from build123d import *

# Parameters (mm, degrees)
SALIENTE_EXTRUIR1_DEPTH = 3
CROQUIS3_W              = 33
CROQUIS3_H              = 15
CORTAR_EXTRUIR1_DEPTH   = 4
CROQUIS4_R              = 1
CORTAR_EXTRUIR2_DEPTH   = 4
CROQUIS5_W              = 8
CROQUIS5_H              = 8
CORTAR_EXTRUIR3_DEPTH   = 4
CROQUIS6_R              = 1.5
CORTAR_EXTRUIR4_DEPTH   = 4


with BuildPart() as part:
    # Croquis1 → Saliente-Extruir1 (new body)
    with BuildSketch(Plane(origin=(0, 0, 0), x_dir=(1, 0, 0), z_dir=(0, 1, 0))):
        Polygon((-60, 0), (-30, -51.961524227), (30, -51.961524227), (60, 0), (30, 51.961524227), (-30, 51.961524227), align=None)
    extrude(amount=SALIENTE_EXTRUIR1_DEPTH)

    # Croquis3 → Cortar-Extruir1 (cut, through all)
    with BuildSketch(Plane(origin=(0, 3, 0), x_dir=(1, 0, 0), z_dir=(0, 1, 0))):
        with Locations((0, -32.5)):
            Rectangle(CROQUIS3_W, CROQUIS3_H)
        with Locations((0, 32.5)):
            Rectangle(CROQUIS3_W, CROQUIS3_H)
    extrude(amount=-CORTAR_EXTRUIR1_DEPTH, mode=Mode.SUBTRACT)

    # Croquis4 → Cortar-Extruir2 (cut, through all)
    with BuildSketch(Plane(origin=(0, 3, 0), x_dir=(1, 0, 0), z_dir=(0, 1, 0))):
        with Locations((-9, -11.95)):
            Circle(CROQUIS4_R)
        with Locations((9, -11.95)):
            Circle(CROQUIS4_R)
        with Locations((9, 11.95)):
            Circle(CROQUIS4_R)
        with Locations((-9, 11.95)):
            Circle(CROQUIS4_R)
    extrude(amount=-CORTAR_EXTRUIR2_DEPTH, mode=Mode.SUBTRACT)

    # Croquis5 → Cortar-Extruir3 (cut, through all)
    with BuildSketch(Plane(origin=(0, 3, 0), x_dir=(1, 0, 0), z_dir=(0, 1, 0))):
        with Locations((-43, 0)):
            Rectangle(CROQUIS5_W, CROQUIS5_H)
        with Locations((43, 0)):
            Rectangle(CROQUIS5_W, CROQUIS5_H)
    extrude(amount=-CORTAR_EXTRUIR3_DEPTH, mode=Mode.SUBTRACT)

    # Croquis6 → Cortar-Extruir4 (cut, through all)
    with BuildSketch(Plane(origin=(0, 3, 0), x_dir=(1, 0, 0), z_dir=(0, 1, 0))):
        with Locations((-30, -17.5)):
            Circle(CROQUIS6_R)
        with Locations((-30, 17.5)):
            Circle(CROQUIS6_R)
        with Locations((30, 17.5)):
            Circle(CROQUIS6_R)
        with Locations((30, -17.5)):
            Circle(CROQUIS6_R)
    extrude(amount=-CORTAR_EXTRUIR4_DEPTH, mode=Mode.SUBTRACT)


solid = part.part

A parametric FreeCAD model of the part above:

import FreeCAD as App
import Part
import Sketcher

V = App.Vector
Q = App.Units.Quantity

doc = App.newDocument("Part")
body = doc.addObject("PartDesign::Body", "Body")

sketch1 = body.newObject("Sketcher::SketchObject", "Sketch")
sketch1.AttachmentSupport = (doc.getObject("XZ_Plane"), [""])
sketch1.MapMode = "FlatFace"
sketch1.addGeometry([
    Part.LineSegment(V(-60, 0, 0), V(-30, 52, 0)),
    Part.LineSegment(V(-30, 52, 0), V(30, 52, 0)),
    Part.LineSegment(V(30, 52, 0), V(60, 0, 0)),
    Part.LineSegment(V(60, 0, 0), V(30, -52, 0)),
    Part.LineSegment(V(30, -52, 0), V(-30, -52, 0)),
    Part.LineSegment(V(-30, -52, 0), V(-60, 0, 0)),
], False)
sketch1.addConstraint([
    Sketcher.Constraint("Coincident", 0, 2, 1, 1),
    Sketcher.Constraint("Coincident", 1, 2, 2, 1),
    Sketcher.Constraint("Coincident", 2, 2, 3, 1),
    Sketcher.Constraint("Coincident", 3, 2, 4, 1),
    Sketcher.Constraint("Coincident", 4, 2, 5, 1),
    Sketcher.Constraint("Coincident", 5, 2, 0, 1),
    Sketcher.Constraint("Horizontal", 1),
    Sketcher.Constraint("Horizontal", 4),
    Sketcher.Constraint("Symmetric", 0, 2, 3, 2, -1, 1),
    Sketcher.Constraint("Symmetric", 2, 2, 5, 2, -1, 1),
    Sketcher.Constraint("PointOnObject", 2, 2, -1),
    Sketcher.Constraint("Parallel", 2, 5),
    Sketcher.Constraint("Vertical", 1, 2, 3, 2),
    Sketcher.Constraint("DistanceX", 1, 1, 1, 2, 60.0),
    Sketcher.Constraint("Angle", 0, Q("60 deg")),
    Sketcher.Constraint("Distance", 0, 60.0),
])
pad1 = body.newObject("PartDesign::Pad", "Pad")
pad1.Profile = sketch1
pad1.Length = 3
pad1.Reversed = True

sketch2 = body.newObject("Sketcher::SketchObject", "Sketch001")
sketch2.AttachmentSupport = (doc.getObject("XZ_Plane"), [""])
sketch2.MapMode = "FlatFace"
sketch2.AttachmentOffset = App.Placement(V(0, 0, -3), App.Rotation())
sketch2.addGeometry([
    Part.LineSegment(V(-16, 25, 0), V(-16, 40, 0)),
    Part.LineSegment(V(-16, 40, 0), V(16, 40, 0)),
    Part.LineSegment(V(16, 40, 0), V(16, 25, 0)),
    Part.LineSegment(V(16, 25, 0), V(-16, 25, 0)),
    Part.LineSegment(V(-16, -40, 0), V(-16, -25, 0)),
    Part.LineSegment(V(-16, -25, 0), V(16, -25, 0)),
    Part.LineSegment(V(16, -25, 0), V(16, -40, 0)),
    Part.LineSegment(V(16, -40, 0), V(-16, -40, 0)),
], False)
sketch2.addConstraint([
    Sketcher.Constraint("Coincident", 0, 2, 1, 1),
    Sketcher.Constraint("Coincident", 1, 2, 2, 1),
    Sketcher.Constraint("Coincident", 2, 2, 3, 1),
    Sketcher.Constraint("Coincident", 3, 2, 0, 1),
    Sketcher.Constraint("Coincident", 4, 2, 5, 1),
    Sketcher.Constraint("Coincident", 5, 2, 6, 1),
    Sketcher.Constraint("Coincident", 6, 2, 7, 1),
    Sketcher.Constraint("Coincident", 7, 2, 4, 1),
    Sketcher.Constraint("Vertical", 0),
    Sketcher.Constraint("Horizontal", 1),
    Sketcher.Constraint("Vertical", 2),
    Sketcher.Constraint("Horizontal", 3),
    Sketcher.Constraint("Vertical", 4),
    Sketcher.Constraint("Horizontal", 5),
    Sketcher.Constraint("Vertical", 6),
    Sketcher.Constraint("Horizontal", 7),
    Sketcher.Constraint("Symmetric", 2, 2, 4, 2, -1, 1),
    Sketcher.Constraint("Symmetric", 0, 2, 6, 2, -1, 1),
    Sketcher.Constraint("Vertical", 3, 2, 4, 2),
    Sketcher.Constraint("DistanceX", 1, 1, 1, 2, 33.0),
    Sketcher.Constraint("DistanceY", 0, 1, 0, 2, 15.0),
    Sketcher.Constraint("DistanceY", -1, 1, 0, 2, 40.0),
])
pocket1 = body.newObject("PartDesign::Pocket", "Pocket")
pocket1.Profile = sketch2
pocket1.Type = "ThroughAll"
pocket1.Reversed = True

sketch3 = body.newObject("Sketcher::SketchObject", "Sketch002")
sketch3.AttachmentSupport = (doc.getObject("XZ_Plane"), [""])
sketch3.MapMode = "FlatFace"
sketch3.AttachmentOffset = App.Placement(V(0, 0, -3), App.Rotation())
sketch3.addGeometry([
    Part.Circle(V(-9, 11.9, 0), V(0, 0, 1), 1),
    Part.Circle(V(9, 11.9, 0), V(0, 0, 1), 1),
    Part.Circle(V(9, -11.9, 0), V(0, 0, 1), 1),
    Part.Circle(V(-9, -11.9, 0), V(0, 0, 1), 1),
], False)
sketch3.addConstraint([
    Sketcher.Constraint("Equal", 0, 1),
    Sketcher.Constraint("Equal", 1, 2),
    Sketcher.Constraint("Equal", 2, 3),
    Sketcher.Constraint("Symmetric", 0, 3, 2, 3, -1, 1),
    Sketcher.Constraint("Symmetric", 1, 3, 3, 3, -1, 1),
    Sketcher.Constraint("Symmetric", 0, 3, 1, 3, -2),
    Sketcher.Constraint("Diameter", 0, 2.0),
    Sketcher.Constraint("DistanceX", 0, 3, -1, 1, 9.0),
    Sketcher.Constraint("DistanceY", 2, 3, 1, 3, 23.9),
])
pocket2 = body.newObject("PartDesign::Pocket", "Pocket001")
pocket2.Profile = sketch3
pocket2.Type = "ThroughAll"
pocket2.Reversed = True

sketch4 = body.newObject("Sketcher::SketchObject", "Sketch003")
sketch4.AttachmentSupport = (doc.getObject("XZ_Plane"), [""])
sketch4.MapMode = "FlatFace"
sketch4.AttachmentOffset = App.Placement(V(0, 0, -3), App.Rotation())
sketch4.addGeometry([
    Part.LineSegment(V(-47, -4, 0), V(-47, 4, 0)),
    Part.LineSegment(V(-47, 4, 0), V(-39, 4, 0)),
    Part.LineSegment(V(-39, 4, 0), V(-39, -4, 0)),
    Part.LineSegment(V(-39, -4, 0), V(-47, -4, 0)),
    Part.LineSegment(V(39, -4, 0), V(39, 4, 0)),
    Part.LineSegment(V(39, 4, 0), V(47, 4, 0)),
    Part.LineSegment(V(47, 4, 0), V(47, -4, 0)),
    Part.LineSegment(V(47, -4, 0), V(39, -4, 0)),
], False)
sketch4.addConstraint([
    Sketcher.Constraint("Coincident", 0, 2, 1, 1),
    Sketcher.Constraint("Coincident", 1, 2, 2, 1),
    Sketcher.Constraint("Coincident", 2, 2, 3, 1),
    Sketcher.Constraint("Coincident", 3, 2, 0, 1),
    Sketcher.Constraint("Coincident", 4, 2, 5, 1),
    Sketcher.Constraint("Coincident", 5, 2, 6, 1),
    Sketcher.Constraint("Coincident", 6, 2, 7, 1),
    Sketcher.Constraint("Coincident", 7, 2, 4, 1),
    Sketcher.Constraint("Vertical", 0),
    Sketcher.Constraint("Horizontal", 1),
    Sketcher.Constraint("Vertical", 2),
    Sketcher.Constraint("Horizontal", 3),
    Sketcher.Constraint("Vertical", 4),
    Sketcher.Constraint("Horizontal", 5),
    Sketcher.Constraint("Vertical", 6),
    Sketcher.Constraint("Horizontal", 7),
    Sketcher.Constraint("Symmetric", 2, 2, 4, 2, -1, 1),
    Sketcher.Constraint("Symmetric", 0, 2, 6, 2, -1, 1),
    Sketcher.Constraint("Horizontal", 1, 2, 4, 2),
    Sketcher.Constraint("Equal", 7, 0),
    Sketcher.Constraint("DistanceX", 1, 1, 1, 2, 8.0),
    Sketcher.Constraint("DistanceX", 0, 2, -1, 1, 47.0),
])
pocket3 = body.newObject("PartDesign::Pocket", "Pocket002")
pocket3.Profile = sketch4
pocket3.Type = "ThroughAll"
pocket3.Reversed = True

sketch5 = body.newObject("Sketcher::SketchObject", "Sketch004")
sketch5.AttachmentSupport = (doc.getObject("XZ_Plane"), [""])
sketch5.MapMode = "FlatFace"
sketch5.AttachmentOffset = App.Placement(V(0, 0, -3), App.Rotation())
sketch5.addGeometry([
    Part.Circle(V(-30, 17.5, 0), V(0, 0, 1), 1.5),
    Part.Circle(V(-30, -17.5, 0), V(0, 0, 1), 1.5),
    Part.Circle(V(30, -17.5, 0), V(0, 0, 1), 1.5),
    Part.Circle(V(30, 17.5, 0), V(0, 0, 1), 1.5),
], False)
sketch5.addConstraint([
    Sketcher.Constraint("Equal", 0, 1),
    Sketcher.Constraint("Equal", 1, 2),
    Sketcher.Constraint("Equal", 2, 3),
    Sketcher.Constraint("Symmetric", 0, 3, 2, 3, -1, 1),
    Sketcher.Constraint("Symmetric", 1, 3, 3, 3, -1, 1),
    Sketcher.Constraint("Symmetric", 1, 3, 2, 3, -2),
    Sketcher.Constraint("Diameter", 0, 3.0),
    Sketcher.Constraint("DistanceX", 0, 3, -1, 1, 30.0),
    Sketcher.Constraint("DistanceY", 1, 3, 0, 3, 35.0),
])
pocket4 = body.newObject("PartDesign::Pocket", "Pocket003")
pocket4.Profile = sketch5
pocket4.Type = "ThroughAll"
pocket4.Reversed = True

doc.recompute()
